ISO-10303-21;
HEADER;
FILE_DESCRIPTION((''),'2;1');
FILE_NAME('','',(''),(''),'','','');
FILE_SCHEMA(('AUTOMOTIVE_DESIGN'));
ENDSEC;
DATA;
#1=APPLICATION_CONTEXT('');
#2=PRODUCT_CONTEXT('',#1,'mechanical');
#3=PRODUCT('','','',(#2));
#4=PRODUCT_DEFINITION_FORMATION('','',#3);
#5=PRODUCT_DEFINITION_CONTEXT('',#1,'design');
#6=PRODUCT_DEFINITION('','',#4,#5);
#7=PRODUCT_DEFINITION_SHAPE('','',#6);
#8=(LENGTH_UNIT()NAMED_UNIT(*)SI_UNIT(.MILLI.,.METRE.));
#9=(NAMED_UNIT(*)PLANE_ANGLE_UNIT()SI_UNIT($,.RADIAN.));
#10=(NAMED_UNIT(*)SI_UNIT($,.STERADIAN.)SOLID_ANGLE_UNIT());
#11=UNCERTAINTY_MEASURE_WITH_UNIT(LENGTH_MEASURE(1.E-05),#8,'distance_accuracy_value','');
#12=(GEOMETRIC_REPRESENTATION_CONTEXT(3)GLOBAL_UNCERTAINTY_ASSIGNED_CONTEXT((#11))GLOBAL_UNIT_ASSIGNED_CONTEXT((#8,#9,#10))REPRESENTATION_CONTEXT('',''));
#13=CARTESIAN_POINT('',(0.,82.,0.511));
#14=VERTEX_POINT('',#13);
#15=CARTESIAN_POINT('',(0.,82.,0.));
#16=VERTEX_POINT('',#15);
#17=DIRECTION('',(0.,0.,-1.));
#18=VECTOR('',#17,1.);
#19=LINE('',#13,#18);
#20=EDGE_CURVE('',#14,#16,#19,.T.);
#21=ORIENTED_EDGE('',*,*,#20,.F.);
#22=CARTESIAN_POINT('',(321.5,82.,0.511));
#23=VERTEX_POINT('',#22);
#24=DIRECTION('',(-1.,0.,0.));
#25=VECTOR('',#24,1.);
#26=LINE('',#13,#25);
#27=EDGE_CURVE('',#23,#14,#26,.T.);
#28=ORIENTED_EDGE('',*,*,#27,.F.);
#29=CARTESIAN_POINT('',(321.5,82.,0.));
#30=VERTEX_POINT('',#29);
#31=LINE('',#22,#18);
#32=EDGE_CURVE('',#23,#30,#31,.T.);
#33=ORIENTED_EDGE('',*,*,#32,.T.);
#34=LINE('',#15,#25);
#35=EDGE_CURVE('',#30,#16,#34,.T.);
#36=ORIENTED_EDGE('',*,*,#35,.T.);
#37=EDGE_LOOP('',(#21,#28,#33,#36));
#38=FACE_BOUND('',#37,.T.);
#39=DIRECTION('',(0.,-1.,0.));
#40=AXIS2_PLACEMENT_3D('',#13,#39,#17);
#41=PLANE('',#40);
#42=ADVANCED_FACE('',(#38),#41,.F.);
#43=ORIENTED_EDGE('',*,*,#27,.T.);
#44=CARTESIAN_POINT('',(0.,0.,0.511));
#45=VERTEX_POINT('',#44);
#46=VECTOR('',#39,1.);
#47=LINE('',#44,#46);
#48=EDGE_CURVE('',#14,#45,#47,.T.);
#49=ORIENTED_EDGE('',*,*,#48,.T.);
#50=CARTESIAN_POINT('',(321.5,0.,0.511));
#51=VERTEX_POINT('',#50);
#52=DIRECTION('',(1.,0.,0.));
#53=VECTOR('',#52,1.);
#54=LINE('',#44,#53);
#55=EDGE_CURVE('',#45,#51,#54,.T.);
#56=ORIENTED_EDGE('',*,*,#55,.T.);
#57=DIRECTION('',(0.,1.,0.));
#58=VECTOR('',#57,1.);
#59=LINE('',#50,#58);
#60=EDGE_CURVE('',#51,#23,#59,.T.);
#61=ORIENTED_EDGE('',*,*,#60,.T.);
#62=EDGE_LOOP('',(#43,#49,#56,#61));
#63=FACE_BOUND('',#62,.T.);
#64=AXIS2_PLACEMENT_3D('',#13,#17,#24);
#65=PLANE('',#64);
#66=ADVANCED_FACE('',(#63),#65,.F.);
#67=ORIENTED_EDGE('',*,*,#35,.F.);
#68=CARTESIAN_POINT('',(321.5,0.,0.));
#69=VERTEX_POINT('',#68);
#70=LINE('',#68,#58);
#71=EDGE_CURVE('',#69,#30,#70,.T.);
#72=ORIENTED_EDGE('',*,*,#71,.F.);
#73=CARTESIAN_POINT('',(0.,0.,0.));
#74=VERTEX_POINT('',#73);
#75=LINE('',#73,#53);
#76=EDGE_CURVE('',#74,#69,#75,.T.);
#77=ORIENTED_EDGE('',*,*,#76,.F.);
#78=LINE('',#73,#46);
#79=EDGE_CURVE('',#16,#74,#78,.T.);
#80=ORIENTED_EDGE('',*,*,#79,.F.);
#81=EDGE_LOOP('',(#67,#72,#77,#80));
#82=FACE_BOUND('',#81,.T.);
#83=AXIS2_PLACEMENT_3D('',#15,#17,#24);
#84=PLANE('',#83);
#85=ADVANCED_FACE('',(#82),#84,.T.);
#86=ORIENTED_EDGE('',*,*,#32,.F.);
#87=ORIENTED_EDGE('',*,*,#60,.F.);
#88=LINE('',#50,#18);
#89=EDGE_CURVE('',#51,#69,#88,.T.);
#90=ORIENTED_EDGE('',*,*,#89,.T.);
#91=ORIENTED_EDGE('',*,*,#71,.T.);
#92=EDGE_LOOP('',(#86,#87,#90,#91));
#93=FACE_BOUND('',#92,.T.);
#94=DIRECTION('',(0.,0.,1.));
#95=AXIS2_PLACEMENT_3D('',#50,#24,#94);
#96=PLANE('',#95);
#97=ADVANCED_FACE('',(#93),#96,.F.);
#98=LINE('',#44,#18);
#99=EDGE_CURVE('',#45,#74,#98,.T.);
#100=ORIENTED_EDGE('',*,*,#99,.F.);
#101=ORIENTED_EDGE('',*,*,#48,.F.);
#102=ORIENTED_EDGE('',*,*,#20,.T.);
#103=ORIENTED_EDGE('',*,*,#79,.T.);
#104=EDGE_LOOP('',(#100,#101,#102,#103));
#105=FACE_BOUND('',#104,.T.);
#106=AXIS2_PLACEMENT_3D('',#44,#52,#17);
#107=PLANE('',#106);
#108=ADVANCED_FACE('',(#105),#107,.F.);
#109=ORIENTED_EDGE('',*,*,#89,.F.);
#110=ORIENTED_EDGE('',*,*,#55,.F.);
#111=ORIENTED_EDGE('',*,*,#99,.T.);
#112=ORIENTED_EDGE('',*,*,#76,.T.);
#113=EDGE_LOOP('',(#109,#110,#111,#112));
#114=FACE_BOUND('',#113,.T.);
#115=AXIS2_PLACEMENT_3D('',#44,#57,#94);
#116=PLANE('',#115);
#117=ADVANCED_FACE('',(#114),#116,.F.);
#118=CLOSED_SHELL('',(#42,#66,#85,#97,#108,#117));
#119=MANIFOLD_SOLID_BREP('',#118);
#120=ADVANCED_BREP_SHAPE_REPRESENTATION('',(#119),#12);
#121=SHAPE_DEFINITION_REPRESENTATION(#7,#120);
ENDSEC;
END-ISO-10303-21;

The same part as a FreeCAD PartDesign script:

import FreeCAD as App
import Part
import Sketcher
from FreeCAD import Vector
Q = App.Units.Quantity


def add_polygon(sketch, points):
    """Adds a closed chain of lines whose ends are joined by coincident constraints."""
    first, n = sketch.GeometryCount, len(points)
    for a, b in zip(points, points[1:] + points[:1]):
        sketch.addGeometry(Part.LineSegment(App.Vector(*a, 0), App.Vector(*b, 0)), False)
    for i in range(n):
        sketch.addConstraint(Sketcher.Constraint("Coincident", first + i, 2, first + (i + 1) % n, 1))

doc = App.newDocument("Part")
body = doc.addObject("PartDesign::Body", "Body")

# Sketch on XY plane
sketch1 = body.newObject("Sketcher::SketchObject", "Sketch")
sketch1.AttachmentSupport = (doc.getObject("XY_Plane"), [""])
sketch1.MapMode = "FlatFace"
add_polygon(sketch1, [(0, 82), (0, 0), (322, 0), (322, 82)])  # lines 0-3
sketch1.addConstraint(Sketcher.Constraint("Vertical", 0))
sketch1.addConstraint(Sketcher.Constraint("Horizontal", 1))
sketch1.addConstraint(Sketcher.Constraint("Vertical", 2))
sketch1.addConstraint(Sketcher.Constraint("Horizontal", 3))
sketch1.addConstraint(Sketcher.Constraint("Coincident", 0, 2, -1, 1))
sketch1.addConstraint(Sketcher.Constraint("DistanceY", 0, 2, 0, 1, Q("82 mm")))
sketch1.addConstraint(Sketcher.Constraint("DistanceX", 1, 1, 1, 2, Q("321.5 mm")))
pad1 = body.newObject("PartDesign::Pad", "Pad")
pad1.Profile = sketch1
pad1.Length = 0.511

doc.recompute()
